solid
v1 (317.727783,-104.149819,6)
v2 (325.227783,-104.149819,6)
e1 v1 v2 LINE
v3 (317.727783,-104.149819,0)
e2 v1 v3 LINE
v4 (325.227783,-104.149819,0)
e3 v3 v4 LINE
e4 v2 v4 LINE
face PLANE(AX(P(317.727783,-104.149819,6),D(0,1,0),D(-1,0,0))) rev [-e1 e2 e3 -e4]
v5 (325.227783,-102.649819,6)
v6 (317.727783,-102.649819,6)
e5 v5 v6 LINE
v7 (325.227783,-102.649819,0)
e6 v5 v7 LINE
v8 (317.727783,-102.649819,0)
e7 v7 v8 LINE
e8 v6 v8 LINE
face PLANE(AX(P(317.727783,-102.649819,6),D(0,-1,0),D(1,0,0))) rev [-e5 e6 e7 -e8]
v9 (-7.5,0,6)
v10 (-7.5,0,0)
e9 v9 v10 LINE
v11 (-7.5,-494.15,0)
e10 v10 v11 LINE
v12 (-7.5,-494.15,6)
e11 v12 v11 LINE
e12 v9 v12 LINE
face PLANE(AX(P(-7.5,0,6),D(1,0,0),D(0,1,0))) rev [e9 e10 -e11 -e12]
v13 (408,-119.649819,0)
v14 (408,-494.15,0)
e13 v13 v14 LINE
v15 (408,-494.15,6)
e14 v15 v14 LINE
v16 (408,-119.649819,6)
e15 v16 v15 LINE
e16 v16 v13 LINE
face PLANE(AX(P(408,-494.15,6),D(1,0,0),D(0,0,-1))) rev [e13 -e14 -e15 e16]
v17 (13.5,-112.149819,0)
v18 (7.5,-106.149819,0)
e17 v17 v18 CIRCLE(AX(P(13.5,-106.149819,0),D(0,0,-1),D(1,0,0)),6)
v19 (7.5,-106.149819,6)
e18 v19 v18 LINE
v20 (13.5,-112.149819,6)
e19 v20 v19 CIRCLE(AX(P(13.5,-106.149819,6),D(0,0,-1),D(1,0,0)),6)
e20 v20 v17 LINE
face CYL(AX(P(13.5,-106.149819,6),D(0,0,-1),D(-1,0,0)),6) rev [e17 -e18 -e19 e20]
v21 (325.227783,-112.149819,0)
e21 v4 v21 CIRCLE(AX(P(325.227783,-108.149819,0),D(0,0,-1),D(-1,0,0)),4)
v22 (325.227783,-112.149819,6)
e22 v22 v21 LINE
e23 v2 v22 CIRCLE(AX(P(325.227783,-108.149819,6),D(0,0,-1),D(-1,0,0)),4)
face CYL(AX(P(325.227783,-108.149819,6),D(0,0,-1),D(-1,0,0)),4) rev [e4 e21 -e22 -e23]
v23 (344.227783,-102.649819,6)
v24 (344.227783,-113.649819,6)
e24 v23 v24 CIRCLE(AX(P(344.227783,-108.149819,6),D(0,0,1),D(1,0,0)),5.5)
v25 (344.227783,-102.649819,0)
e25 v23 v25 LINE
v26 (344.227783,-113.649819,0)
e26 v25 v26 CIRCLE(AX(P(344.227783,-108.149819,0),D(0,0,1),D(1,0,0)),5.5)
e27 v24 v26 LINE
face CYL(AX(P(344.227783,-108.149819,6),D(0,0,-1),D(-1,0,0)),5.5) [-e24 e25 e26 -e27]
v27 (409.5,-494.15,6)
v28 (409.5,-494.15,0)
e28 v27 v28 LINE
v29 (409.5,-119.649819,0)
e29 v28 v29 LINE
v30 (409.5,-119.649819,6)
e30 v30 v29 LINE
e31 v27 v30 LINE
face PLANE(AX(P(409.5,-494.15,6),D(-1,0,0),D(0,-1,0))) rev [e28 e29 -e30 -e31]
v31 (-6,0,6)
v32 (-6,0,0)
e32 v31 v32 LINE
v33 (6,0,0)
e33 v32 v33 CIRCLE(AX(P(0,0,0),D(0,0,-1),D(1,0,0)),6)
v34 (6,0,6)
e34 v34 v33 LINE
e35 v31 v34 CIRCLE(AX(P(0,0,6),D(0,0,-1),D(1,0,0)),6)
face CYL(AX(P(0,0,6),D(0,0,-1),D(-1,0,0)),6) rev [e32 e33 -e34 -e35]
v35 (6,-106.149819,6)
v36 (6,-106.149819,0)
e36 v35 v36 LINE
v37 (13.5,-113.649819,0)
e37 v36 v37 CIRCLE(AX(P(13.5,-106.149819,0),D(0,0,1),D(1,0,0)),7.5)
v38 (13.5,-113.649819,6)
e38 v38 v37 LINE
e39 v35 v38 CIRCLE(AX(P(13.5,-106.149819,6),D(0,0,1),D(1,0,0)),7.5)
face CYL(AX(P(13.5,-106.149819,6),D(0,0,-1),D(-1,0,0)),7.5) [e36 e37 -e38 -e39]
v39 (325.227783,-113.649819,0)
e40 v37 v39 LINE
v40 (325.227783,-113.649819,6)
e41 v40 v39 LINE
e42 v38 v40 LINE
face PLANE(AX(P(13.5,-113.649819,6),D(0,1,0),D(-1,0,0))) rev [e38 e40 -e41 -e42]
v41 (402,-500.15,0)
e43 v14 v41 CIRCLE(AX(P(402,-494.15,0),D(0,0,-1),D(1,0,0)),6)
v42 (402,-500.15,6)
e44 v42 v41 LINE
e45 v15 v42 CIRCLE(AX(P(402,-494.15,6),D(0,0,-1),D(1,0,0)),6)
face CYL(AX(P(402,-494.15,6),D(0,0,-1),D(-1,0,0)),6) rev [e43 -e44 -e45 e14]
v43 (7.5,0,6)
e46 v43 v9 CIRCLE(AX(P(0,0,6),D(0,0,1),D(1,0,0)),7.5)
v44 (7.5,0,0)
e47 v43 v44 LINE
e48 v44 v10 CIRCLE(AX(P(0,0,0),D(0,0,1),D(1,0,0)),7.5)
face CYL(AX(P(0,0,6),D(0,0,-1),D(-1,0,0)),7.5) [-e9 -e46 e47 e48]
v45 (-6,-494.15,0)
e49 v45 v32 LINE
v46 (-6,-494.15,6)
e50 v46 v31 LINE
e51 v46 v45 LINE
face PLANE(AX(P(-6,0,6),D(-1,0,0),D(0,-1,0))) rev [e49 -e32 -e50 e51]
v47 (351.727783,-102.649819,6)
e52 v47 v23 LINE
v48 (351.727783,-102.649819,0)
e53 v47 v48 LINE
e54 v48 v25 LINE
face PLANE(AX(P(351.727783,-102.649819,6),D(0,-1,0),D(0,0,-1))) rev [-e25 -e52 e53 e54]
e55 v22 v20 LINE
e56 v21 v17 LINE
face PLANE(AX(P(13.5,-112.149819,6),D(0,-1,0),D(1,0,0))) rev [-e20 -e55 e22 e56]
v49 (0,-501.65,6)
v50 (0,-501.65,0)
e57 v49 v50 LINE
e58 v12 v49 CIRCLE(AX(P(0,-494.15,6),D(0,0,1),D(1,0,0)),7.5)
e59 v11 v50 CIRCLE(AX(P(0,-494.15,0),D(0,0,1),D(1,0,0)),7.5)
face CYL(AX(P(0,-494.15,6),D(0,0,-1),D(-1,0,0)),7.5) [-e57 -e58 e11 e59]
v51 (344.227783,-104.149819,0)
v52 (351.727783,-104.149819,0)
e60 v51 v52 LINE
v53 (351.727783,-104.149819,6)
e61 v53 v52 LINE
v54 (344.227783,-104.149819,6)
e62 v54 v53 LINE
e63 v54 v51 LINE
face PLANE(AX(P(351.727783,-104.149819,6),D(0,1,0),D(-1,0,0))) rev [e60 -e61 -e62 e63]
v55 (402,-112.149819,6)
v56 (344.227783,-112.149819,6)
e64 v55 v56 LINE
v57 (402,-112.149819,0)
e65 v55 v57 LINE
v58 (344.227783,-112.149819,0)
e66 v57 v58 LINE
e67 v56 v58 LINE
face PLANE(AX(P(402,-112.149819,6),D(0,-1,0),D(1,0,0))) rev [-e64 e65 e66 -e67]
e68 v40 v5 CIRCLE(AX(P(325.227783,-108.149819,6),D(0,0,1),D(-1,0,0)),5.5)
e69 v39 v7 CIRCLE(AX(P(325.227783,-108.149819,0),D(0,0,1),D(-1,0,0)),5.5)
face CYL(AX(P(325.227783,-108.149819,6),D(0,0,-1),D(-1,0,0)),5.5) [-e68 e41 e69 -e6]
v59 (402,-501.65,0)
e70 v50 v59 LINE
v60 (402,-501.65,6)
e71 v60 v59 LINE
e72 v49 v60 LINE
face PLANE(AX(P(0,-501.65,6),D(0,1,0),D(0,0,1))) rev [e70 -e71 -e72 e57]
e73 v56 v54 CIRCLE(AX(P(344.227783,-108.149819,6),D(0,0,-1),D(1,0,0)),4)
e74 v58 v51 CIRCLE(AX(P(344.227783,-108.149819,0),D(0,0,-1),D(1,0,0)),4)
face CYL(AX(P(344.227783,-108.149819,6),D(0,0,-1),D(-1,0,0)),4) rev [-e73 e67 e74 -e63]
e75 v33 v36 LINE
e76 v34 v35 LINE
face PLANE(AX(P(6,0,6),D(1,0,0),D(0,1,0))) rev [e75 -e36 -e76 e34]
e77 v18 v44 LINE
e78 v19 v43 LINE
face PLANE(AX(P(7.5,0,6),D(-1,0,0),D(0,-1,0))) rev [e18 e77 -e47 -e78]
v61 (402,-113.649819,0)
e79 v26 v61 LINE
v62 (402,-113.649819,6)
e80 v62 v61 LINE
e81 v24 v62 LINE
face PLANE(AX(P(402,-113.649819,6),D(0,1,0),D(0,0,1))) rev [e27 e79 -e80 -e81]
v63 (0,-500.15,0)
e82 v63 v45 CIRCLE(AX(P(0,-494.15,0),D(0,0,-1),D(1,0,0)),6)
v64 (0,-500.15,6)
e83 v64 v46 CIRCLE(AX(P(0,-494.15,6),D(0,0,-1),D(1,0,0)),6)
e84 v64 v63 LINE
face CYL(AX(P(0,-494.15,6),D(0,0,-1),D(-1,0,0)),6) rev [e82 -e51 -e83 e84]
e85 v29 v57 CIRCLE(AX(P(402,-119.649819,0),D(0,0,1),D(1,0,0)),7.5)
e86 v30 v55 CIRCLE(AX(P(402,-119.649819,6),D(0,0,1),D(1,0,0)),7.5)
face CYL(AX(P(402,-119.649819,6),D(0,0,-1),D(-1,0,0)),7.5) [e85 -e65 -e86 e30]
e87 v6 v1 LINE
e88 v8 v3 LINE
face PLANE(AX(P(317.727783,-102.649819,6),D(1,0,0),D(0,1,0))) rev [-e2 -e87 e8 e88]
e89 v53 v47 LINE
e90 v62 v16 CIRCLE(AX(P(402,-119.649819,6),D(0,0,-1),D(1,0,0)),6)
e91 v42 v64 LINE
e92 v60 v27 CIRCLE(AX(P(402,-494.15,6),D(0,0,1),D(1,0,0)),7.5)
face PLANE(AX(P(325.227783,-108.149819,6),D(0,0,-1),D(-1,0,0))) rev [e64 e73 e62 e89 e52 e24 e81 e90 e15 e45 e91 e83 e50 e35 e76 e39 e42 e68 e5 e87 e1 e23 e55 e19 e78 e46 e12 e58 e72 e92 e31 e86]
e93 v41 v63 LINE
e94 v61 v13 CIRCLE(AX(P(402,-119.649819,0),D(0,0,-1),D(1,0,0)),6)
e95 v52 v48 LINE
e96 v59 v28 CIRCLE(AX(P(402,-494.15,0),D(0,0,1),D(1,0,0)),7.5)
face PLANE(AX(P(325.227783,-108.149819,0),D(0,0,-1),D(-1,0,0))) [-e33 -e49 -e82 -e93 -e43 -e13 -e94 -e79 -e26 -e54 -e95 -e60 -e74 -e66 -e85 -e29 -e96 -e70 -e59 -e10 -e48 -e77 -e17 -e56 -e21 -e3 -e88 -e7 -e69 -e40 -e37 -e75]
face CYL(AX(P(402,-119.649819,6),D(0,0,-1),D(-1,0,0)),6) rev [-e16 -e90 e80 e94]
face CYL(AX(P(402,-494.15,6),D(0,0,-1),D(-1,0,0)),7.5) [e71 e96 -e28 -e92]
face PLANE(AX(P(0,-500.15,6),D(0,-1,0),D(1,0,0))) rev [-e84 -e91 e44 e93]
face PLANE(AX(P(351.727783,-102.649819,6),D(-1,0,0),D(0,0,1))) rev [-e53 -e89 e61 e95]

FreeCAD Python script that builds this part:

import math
import FreeCAD as App
import Part
import Sketcher

V = App.Vector
Q = App.Units.Quantity

doc = App.newDocument("Part")
body = doc.addObject("PartDesign::Body", "Body")

# Sketch on XY plane
sketch1 = doc.addObject("Sketcher::SketchObject", "Sketch")
body.addObject(sketch1)
sketch1.AttachmentSupport = (doc.XY_Plane, [""])
sketch1.MapMode = "FlatFace"
sketch1.addGeometry([
    Part.LineSegment(V(-6, -494.1, 0), V(-6, 0, 0)),  # 0
    Part.ArcOfCircle(Part.Circle(V(0, 0, 0), V(0, 0, 1), 6), math.radians(0), math.radians(180)),  # 1
    Part.LineSegment(V(6, 0, 0), V(6, -106.1, 0)),  # 2
    Part.ArcOfCircle(Part.Circle(V(13.5, -106.1, 0), V(0, 0, 1), 7.5), math.radians(180), math.radians(270)),  # 3
    Part.LineSegment(V(13.5, -113.6, 0), V(325.2, -113.6, 0)),  # 4
    Part.ArcOfCircle(Part.Circle(V(325.2, -108.1, 0), V(0, 0, 1), 5.5), math.radians(-90), math.radians(90)),  # 5
    Part.LineSegment(V(325.2, -102.6, 0), V(317.7, -102.6, 0)),  # 6
    Part.LineSegment(V(317.7, -102.6, 0), V(317.7, -104.1, 0)),  # 7
    Part.LineSegment(V(317.7, -104.1, 0), V(325.2, -104.1, 0)),  # 8
    Part.ArcOfCircle(Part.Circle(V(325.2, -108.1, 0), V(0, 0, 1), 4), math.radians(-90), math.radians(90)),  # 9
    Part.LineSegment(V(325.2, -112.1, 0), V(13.5, -112.1, 0)),  # 10
    Part.ArcOfCircle(Part.Circle(V(13.5, -106.1, 0), V(0, 0, 1), 6), math.radians(180), math.radians(270)),  # 11
    Part.LineSegment(V(7.5, -106.1, 0), V(7.5, 0, 0)),  # 12
    Part.ArcOfCircle(Part.Circle(V(0, 0, 0), V(0, 0, 1), 7.5), math.radians(0), math.radians(180)),  # 13
    Part.LineSegment(V(-7.5, 0, 0), V(-7.5, -494.1, 0)),  # 14
    Part.ArcOfCircle(Part.Circle(V(0, -494.1, 0), V(0, 0, 1), 7.5), math.radians(180), math.radians(270)),  # 15
    Part.LineSegment(V(0, -501.6, 0), V(402, -501.6, 0)),  # 16
    Part.ArcOfCircle(Part.Circle(V(402, -494.1, 0), V(0, 0, 1), 7.5), math.radians(-90), math.radians(0)),  # 17
    Part.LineSegment(V(409.5, -494.1, 0), V(409.5, -119.6, 0)),  # 18
    Part.ArcOfCircle(Part.Circle(V(402, -119.6, 0), V(0, 0, 1), 7.5), math.radians(0), math.radians(90)),  # 19
    Part.LineSegment(V(402, -112.1, 0), V(344.2, -112.1, 0)),  # 20
    Part.ArcOfCircle(Part.Circle(V(344.2, -108.1, 0), V(0, 0, 1), 4), math.radians(90), math.radians(270)),  # 21
    Part.LineSegment(V(344.2, -104.1, 0), V(351.7, -104.1, 0)),  # 22
    Part.LineSegment(V(351.7, -104.1, 0), V(351.7, -102.6, 0)),  # 23
    Part.LineSegment(V(351.7, -102.6, 0), V(344.2, -102.6, 0)),  # 24
    Part.ArcOfCircle(Part.Circle(V(344.2, -108.1, 0), V(0, 0, 1), 5.5), math.radians(90), math.radians(270)),  # 25
    Part.LineSegment(V(344.2, -113.6, 0), V(402, -113.6, 0)),  # 26
    Part.ArcOfCircle(Part.Circle(V(402, -119.6, 0), V(0, 0, 1), 6), math.radians(0), math.radians(90)),  # 27
    Part.LineSegment(V(408, -119.6, 0), V(408, -494.1, 0)),  # 28
    Part.ArcOfCircle(Part.Circle(V(402, -494.1, 0), V(0, 0, 1), 6), math.radians(-90), math.radians(0)),  # 29
    Part.LineSegment(V(402, -500.1, 0), V(0, -500.1, 0)),  # 30
    Part.ArcOfCircle(Part.Circle(V(0, -494.1, 0), V(0, 0, 1), 6), math.radians(180), math.radians(270)),  # 31
], False)
sketch1.addConstraint([
    Sketcher.Constraint("Tangent", 0, 2, 1, 2),
    Sketcher.Constraint("Tangent", 1, 1, 2, 1),
    Sketcher.Constraint("Tangent", 2, 2, 3, 1),
    Sketcher.Constraint("Tangent", 3, 2, 4, 1),
    Sketcher.Constraint("Tangent", 4, 2, 5, 1),
    Sketcher.Constraint("Tangent", 5, 2, 6, 1),
    Sketcher.Constraint("Coincident", 6, 2, 7, 1),
    Sketcher.Constraint("Coincident", 7, 2, 8, 1),
    Sketcher.Constraint("Tangent", 8, 2, 9, 2),
    Sketcher.Constraint("Tangent", 9, 1, 10, 1),
    Sketcher.Constraint("Tangent", 10, 2, 11, 2),
    Sketcher.Constraint("Tangent", 11, 1, 12, 1),
    Sketcher.Constraint("Tangent", 12, 2, 13, 1),
    Sketcher.Constraint("Tangent", 13, 2, 14, 1),
    Sketcher.Constraint("Tangent", 14, 2, 15, 1),
    Sketcher.Constraint("Tangent", 15, 2, 16, 1),
    Sketcher.Constraint("Tangent", 16, 2, 17, 1),
    Sketcher.Constraint("Tangent", 17, 2, 18, 1),
    Sketcher.Constraint("Tangent", 18, 2, 19, 1),
    Sketcher.Constraint("Tangent", 19, 2, 20, 1),
    Sketcher.Constraint("Tangent", 20, 2, 21, 2),
    Sketcher.Constraint("Tangent", 21, 1, 22, 1),
    Sketcher.Constraint("Coincident", 22, 2, 23, 1),
    Sketcher.Constraint("Coincident", 23, 2, 24, 1),
    Sketcher.Constraint("Tangent", 24, 2, 25, 1),
    Sketcher.Constraint("Tangent", 25, 2, 26, 1),
    Sketcher.Constraint("Tangent", 26, 2, 27, 2),
    Sketcher.Constraint("Tangent", 27, 1, 28, 1),
    Sketcher.Constraint("Tangent", 28, 2, 29, 2),
    Sketcher.Constraint("Tangent", 29, 1, 30, 1),
    Sketcher.Constraint("Tangent", 30, 2, 31, 2),
    Sketcher.Constraint("Tangent", 31, 1, 0, 1),
    Sketcher.Constraint("Vertical", 0),
    Sketcher.Constraint("Vertical", 2),
    Sketcher.Constraint("Horizontal", 4),
    Sketcher.Constraint("Horizontal", 6),
    Sketcher.Constraint("Vertical", 7),
    Sketcher.Constraint("Horizontal", 8),
    Sketcher.Constraint("Horizontal", 10),
    Sketcher.Constraint("Vertical", 12),
    Sketcher.Constraint("Vertical", 14),
    Sketcher.Constraint("Horizontal", 16),
    Sketcher.Constraint("Vertical", 18),
    Sketcher.Constraint("Horizontal", 20),
    Sketcher.Constraint("Horizontal", 22),
    Sketcher.Constraint("Vertical", 23),
    Sketcher.Constraint("Horizontal", 24),
    Sketcher.Constraint("Horizontal", 26),
    Sketcher.Constraint("Vertical", 28),
    Sketcher.Constraint("Horizontal", 30),
    Sketcher.Constraint("Coincident", 1, 3, -1, 1),
    Sketcher.Constraint("Coincident", 13, 3, -1, 1),
    Sketcher.Constraint("Coincident", 9, 3, 5, 3),
    Sketcher.Constraint("Coincident", 11, 3, 3, 3),
    Sketcher.Constraint("Coincident", 25, 3, 21, 3),
    Sketcher.Constraint("Coincident", 27, 3, 19, 3),
    Sketcher.Constraint("Coincident", 29, 3, 17, 3),
    Sketcher.Constraint("Coincident", 31, 3, 15, 3),
    Sketcher.Constraint("Equal", 1, 11),
    Sketcher.Constraint("Equal", 13, 15),
    Sketcher.Constraint("Equal", 15, 17),
    Sketcher.Constraint("Equal", 17, 19),
    Sketcher.Constraint("Equal", 9, 21),
    Sketcher.Constraint("Horizontal", 9, 3, 21, 3),
    Sketcher.Constraint("Equal", 8, 22),
    Sketcher.Constraint("Radius", 1, Q("6 mm")),
    Sketcher.Constraint("Radius", 9, Q("4 mm")),
    Sketcher.Constraint("Radius", 3, Q("7.5 mm")),
    Sketcher.Constraint("DistanceX", 16, 1, 16, 2, Q("402 mm")),
    Sketcher.Constraint("DistanceX", 6, 2, 6, 1, Q("7.5 mm")),
    Sketcher.Constraint("DistanceX", 5, 3, 21, 3, Q("19 mm")),
    Sketcher.Constraint("DistanceY", 0, 1, 0, 2, Q("494.15 mm")),
    Sketcher.Constraint("DistanceY", 2, 2, 2, 1, Q("106.149819 mm")),
    Sketcher.Constraint("DistanceX", 4, 1, 4, 2, Q("311.727783 mm")),
])
pad1 = doc.addObject("PartDesign::Pad", "Pad")
body.addObject(pad1)
pad1.Profile = sketch1
pad1.Length = 6

doc.recompute()
